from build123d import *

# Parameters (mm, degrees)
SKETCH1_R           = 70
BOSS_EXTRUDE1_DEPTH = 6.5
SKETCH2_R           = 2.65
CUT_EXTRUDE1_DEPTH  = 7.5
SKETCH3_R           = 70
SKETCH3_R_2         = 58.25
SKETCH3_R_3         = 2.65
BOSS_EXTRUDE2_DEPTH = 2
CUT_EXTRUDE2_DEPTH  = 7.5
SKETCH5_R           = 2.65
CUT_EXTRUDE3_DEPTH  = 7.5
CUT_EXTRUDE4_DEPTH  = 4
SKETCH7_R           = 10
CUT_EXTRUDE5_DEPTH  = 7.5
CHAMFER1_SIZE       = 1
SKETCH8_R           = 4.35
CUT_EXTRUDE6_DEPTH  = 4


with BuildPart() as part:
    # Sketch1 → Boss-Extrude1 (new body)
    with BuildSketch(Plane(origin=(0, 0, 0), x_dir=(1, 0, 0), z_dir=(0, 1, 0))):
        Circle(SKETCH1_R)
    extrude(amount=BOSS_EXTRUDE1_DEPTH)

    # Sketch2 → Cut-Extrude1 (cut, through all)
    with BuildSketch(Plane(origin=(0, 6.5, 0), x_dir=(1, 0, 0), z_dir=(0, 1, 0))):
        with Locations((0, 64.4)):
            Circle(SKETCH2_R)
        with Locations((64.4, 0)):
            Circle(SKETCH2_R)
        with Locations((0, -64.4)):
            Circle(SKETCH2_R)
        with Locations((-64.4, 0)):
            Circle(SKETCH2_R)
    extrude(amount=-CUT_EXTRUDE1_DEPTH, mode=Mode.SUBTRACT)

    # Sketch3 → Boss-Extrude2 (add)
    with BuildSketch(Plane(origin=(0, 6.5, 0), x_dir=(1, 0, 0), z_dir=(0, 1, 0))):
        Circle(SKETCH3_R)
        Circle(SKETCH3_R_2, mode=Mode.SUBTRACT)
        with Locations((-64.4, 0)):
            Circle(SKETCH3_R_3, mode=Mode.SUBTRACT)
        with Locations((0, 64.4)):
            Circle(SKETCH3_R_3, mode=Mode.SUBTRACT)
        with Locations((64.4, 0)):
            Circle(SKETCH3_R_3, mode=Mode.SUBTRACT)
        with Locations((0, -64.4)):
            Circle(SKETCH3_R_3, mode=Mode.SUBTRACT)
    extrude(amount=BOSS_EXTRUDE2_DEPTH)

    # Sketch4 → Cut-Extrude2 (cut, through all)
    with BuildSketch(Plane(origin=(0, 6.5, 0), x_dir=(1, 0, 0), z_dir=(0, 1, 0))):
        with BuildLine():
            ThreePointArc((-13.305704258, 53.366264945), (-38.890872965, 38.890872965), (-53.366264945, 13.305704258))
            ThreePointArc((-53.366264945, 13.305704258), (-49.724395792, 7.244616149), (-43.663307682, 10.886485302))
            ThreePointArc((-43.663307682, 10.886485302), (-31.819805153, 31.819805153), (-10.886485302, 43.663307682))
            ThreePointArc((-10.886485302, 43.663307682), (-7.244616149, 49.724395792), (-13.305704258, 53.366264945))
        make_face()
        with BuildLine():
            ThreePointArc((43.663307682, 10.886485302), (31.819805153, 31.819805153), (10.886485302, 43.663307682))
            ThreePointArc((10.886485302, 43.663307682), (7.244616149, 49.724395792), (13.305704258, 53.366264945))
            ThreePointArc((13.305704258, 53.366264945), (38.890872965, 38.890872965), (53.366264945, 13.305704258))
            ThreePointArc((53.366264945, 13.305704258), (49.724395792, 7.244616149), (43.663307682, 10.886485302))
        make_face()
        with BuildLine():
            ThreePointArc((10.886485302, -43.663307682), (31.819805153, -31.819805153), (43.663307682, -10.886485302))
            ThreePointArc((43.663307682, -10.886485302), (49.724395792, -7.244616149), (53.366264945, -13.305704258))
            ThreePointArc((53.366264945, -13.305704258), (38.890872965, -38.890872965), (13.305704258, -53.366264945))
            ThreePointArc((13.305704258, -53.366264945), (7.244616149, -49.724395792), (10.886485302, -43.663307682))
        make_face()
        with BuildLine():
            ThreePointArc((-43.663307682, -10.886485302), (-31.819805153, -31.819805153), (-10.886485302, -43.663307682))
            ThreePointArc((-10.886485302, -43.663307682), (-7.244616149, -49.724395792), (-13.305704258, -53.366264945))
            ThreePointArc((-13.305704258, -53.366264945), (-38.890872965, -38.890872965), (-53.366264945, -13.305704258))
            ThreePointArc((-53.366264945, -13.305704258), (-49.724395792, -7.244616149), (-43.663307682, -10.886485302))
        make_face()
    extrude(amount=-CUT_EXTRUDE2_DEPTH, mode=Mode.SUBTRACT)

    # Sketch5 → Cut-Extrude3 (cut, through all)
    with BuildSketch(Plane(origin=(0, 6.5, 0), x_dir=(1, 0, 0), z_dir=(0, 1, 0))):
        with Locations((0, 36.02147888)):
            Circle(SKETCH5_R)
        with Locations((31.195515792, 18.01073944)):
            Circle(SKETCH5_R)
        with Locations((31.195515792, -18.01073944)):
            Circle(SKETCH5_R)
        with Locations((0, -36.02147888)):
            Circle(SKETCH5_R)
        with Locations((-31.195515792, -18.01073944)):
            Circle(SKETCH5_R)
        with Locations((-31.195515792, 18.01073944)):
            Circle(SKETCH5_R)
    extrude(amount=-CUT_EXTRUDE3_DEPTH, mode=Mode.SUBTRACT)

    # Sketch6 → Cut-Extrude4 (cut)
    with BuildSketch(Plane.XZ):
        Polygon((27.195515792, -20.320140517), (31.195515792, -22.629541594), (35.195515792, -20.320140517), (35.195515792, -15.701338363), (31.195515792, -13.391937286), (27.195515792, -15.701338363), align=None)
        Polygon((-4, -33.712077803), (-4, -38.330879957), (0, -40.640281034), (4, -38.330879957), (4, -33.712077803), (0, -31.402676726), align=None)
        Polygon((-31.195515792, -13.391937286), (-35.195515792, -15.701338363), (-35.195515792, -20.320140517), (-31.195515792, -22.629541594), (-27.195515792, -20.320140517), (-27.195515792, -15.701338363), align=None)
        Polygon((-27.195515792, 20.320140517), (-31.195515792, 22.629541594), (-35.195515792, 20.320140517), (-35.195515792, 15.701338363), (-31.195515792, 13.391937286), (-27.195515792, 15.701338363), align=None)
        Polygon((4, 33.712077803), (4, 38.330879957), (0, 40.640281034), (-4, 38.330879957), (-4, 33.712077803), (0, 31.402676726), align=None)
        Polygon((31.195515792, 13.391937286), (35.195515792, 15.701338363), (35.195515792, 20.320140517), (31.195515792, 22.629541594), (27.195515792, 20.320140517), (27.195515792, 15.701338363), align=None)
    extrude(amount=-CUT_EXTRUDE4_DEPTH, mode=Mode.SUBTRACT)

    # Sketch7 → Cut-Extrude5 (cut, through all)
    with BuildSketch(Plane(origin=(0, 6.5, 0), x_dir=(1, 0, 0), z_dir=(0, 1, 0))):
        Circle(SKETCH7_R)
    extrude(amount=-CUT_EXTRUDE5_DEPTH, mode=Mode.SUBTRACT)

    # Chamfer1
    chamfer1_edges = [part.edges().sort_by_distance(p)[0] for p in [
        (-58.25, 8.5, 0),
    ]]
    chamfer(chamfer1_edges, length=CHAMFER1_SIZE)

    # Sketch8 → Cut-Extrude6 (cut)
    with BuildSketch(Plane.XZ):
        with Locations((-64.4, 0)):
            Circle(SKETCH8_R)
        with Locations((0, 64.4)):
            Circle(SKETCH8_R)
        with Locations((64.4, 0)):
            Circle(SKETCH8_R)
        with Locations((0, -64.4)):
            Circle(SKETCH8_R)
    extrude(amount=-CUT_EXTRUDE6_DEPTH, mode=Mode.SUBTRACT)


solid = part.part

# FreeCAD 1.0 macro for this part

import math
import FreeCAD as App
import Part
import Sketcher
Q = App.Units.Quantity


def edges_at(feature, points):
    """Names of the edges that pass closest to the given points."""
    edges = feature.Shape.Edges
    near = lambda p: min(range(len(edges)), key=lambda i: edges[i].distToShape(Part.Vertex(*p))[0])
    return sorted({f"Edge{near(p) + 1}" for p in points})


def add_polygon(sketch, points):
    """Adds a closed chain of lines whose ends are joined by coincident constraints."""
    first, n = sketch.GeometryCount, len(points)
    for a, b in zip(points, points[1:] + points[:1]):
        sketch.addGeometry(Part.LineSegment(App.Vector(*a, 0), App.Vector(*b, 0)), False)
    for i in range(n):
        sketch.addConstraint(Sketcher.Constraint("Coincident", first + i, 2, first + (i + 1) % n, 1))

doc = App.newDocument("Part")
body = doc.addObject("PartDesign::Body", "Body")

# Sketch on XZ plane
sketch1 = body.newObject("Sketcher::SketchObject", "Sketch")
sketch1.AttachmentSupport = (doc.getObject("XZ_Plane"), [""])
sketch1.MapMode = "FlatFace"
sketch1.addGeometry(Part.Circle(App.Vector(0, 0, 0), App.Vector(0, 0, 1), 70), False)
sketch1.addConstraint(Sketcher.Constraint("Coincident", 0, 3, -1, 1))
sketch1.addConstraint(Sketcher.Constraint("Diameter", 0, 140.0))
pad1 = body.newObject("PartDesign::Pad", "Pad")
pad1.Profile = sketch1
pad1.Length = 6.5
pad1.Reversed = True

# Sketch on XZ plane
sketch2 = body.newObject("Sketcher::SketchObject", "Sketch001")
sketch2.AttachmentSupport = (doc.getObject("XZ_Plane"), [""])
sketch2.MapMode = "FlatFace"
sketch2.AttachmentOffset = App.Placement(App.Vector(0, 0, -6.5), App.Rotation())
sketch2.addGeometry(Part.Circle(App.Vector(0, -64.4, 0), App.Vector(0, 0, 1), 2.6), False)
sketch2.addGeometry(Part.Circle(App.Vector(64.4, 0, 0), App.Vector(0, 0, 1), 2.6), False)
sketch2.addGeometry(Part.Circle(App.Vector(0, 64.4, 0), App.Vector(0, 0, 1), 2.6), False)
sketch2.addGeometry(Part.Circle(App.Vector(-64.4, 0, 0), App.Vector(0, 0, 1), 2.6), False)
sketch2.addConstraint(Sketcher.Constraint("Equal", 0, 1))
sketch2.addConstraint(Sketcher.Constraint("Equal", 1, 2))
sketch2.addConstraint(Sketcher.Constraint("Equal", 2, 3))
sketch2.addConstraint(Sketcher.Constraint("Symmetric", 0, 3, 2, 3, -1, 1))
sketch2.addConstraint(Sketcher.Constraint("Symmetric", 1, 3, 3, 3, -1, 1))
sketch2.addConstraint(Sketcher.Constraint("PointOnObject", 0, 3, -2))
sketch2.addConstraint(Sketcher.Constraint("PointOnObject", 1, 3, -1))
sketch2.addConstraint(Sketcher.Constraint("Diameter", 0, 5.3))
sketch2.addConstraint(Sketcher.Constraint("DistanceY", 0, 3, -1, 1, 64.4))
sketch2.addConstraint(Sketcher.Constraint("DistanceX", -1, 1, 1, 3, 64.4))
pocket1 = body.newObject("PartDesign::Pocket", "Pocket")
pocket1.Profile = sketch2
pocket1.Type = "ThroughAll"
pocket1.Reversed = True

# Sketch on XZ plane
sketch3 = body.newObject("Sketcher::SketchObject", "Sketch002")
sketch3.AttachmentSupport = (doc.getObject("XZ_Plane"), [""])
sketch3.MapMode = "FlatFace"
sketch3.AttachmentOffset = App.Placement(App.Vector(0, 0, -6.5), App.Rotation())
sketch3.addGeometry(Part.Circle(App.Vector(0, 0, 0), App.Vector(0, 0, 1), 70), False)
sketch3.addGeometry(Part.Circle(App.Vector(0, 64.4, 0), App.Vector(0, 0, 1), 2.6), False)
sketch3.addGeometry(Part.Circle(App.Vector(-64.4, 0, 0), App.Vector(0, 0, 1), 2.6), False)
sketch3.addGeometry(Part.Circle(App.Vector(0, 0, 0), App.Vector(0, 0, 1), 58.2), False)
sketch3.addGeometry(Part.Circle(App.Vector(64.4, 0, 0), App.Vector(0, 0, 1), 2.6), False)
sketch3.addGeometry(Part.Circle(App.Vector(0, -64.4, 0), App.Vector(0, 0, 1), 2.6), False)
sketch3.addConstraint(Sketcher.Constraint("Coincident", 0, 3, -1, 1))
sketch3.addConstraint(Sketcher.Constraint("Coincident", 3, 3, -1, 1))
sketch3.addConstraint(Sketcher.Constraint("Equal", 1, 2))
sketch3.addConstraint(Sketcher.Constraint("Equal", 2, 4))
sketch3.addConstraint(Sketcher.Constraint("Equal", 4, 5))
sketch3.addConstraint(Sketcher.Constraint("Symmetric", 2, 3, 4, 3, -1, 1))
sketch3.addConstraint(Sketcher.Constraint("Symmetric", 1, 3, 5, 3, -1, 1))
sketch3.addConstraint(Sketcher.Constraint("PointOnObject", 1, 3, -2))
sketch3.addConstraint(Sketcher.Constraint("PointOnObject", 2, 3, -1))
sketch3.addConstraint(Sketcher.Constraint("Diameter", 0, 140.0))
sketch3.addConstraint(Sketcher.Constraint("Diameter", 1, 5.3))
sketch3.addConstraint(Sketcher.Constraint("Diameter", 3, 116.5))
sketch3.addConstraint(Sketcher.Constraint("DistanceY", -1, 1, 1, 3, 64.4))
sketch3.addConstraint(Sketcher.Constraint("DistanceX", 2, 3, -1, 1, 64.4))
pad2 = body.newObject("PartDesign::Pad", "Pad001")
pad2.Profile = sketch3
pad2.Length = 2
pad2.Reversed = True

# Sketch on XZ plane
sketch4 = body.newObject("Sketcher::SketchObject", "Sketch003")
sketch4.AttachmentSupport = (doc.getObject("XZ_Plane"), [""])
sketch4.MapMode = "FlatFace"
sketch4.AttachmentOffset = App.Placement(App.Vector(0, 0, -6.5), App.Rotation())
sketch4.addGeometry(Part.ArcOfCircle(Part.Circle(App.Vector(0, 0, 0), App.Vector(0, 0, 1), 55), math.radians(-166), math.radians(-104)), False)
sketch4.addGeometry(Part.ArcOfCircle(Part.Circle(App.Vector(-49, -12, 0), App.Vector(0, 0, 1), 5), math.radians(14), math.radians(194)), False)
sketch4.addGeometry(Part.ArcOfCircle(Part.Circle(App.Vector(0, 0, 0), App.Vector(0, 0, 1), 45), math.radians(-166), math.radians(-104)), False)
sketch4.addGeometry(Part.ArcOfCircle(Part.Circle(App.Vector(-12, -49, 0), App.Vector(0, 0, 1), 5), math.radians(-104), math.radians(76)), False)
sketch4.addGeometry(Part.ArcOfCircle(Part.Circle(App.Vector(0, 0, 0), App.Vector(0, 0, 1), 45), math.radians(-76), math.radians(-14)), False)
sketch4.addGeometry(Part.ArcOfCircle(Part.Circle(App.Vector(49, -12, 0), App.Vector(0, 0, 1), 5), math.radians(-14), math.radians(166)), False)
sketch4.addGeometry(Part.ArcOfCircle(Part.Circle(App.Vector(0, 0, 0), App.Vector(0, 0, 1), 55), math.radians(-76), math.radians(-14)), False)
sketch4.addGeometry(Part.ArcOfCircle(Part.Circle(App.Vector(12, -49, 0), App.Vector(0, 0, 1), 5), math.radians(104), math.radians(284)), False)
sketch4.addGeometry(Part.ArcOfCircle(Part.Circle(App.Vector(0, 0, 0), App.Vector(0, 0, 1), 45), math.radians(14), math.radians(76)), False)
sketch4.addGeometry(Part.ArcOfCircle(Part.Circle(App.Vector(12, 49, 0), App.Vector(0, 0, 1), 5), math.radians(76), math.radians(256)), False)
sketch4.addGeometry(Part.ArcOfCircle(Part.Circle(App.Vector(0, 0, 0), App.Vector(0, 0, 1), 55), math.radians(14), math.radians(76)), False)
sketch4.addGeometry(Part.ArcOfCircle(Part.Circle(App.Vector(49, 12, 0), App.Vector(0, 0, 1), 5), math.radians(-166), math.radians(14)), False)
sketch4.addGeometry(Part.ArcOfCircle(Part.Circle(App.Vector(0, 0, 0), App.Vector(0, 0, 1), 45), math.radians(104), math.radians(166)), False)
sketch4.addGeometry(Part.ArcOfCircle(Part.Circle(App.Vector(-49, 12, 0), App.Vector(0, 0, 1), 5), math.radians(166), math.radians(346)), False)
sketch4.addGeometry(Part.ArcOfCircle(Part.Circle(App.Vector(0, 0, 0), App.Vector(0, 0, 1), 55), math.radians(104), math.radians(166)), False)
sketch4.addGeometry(Part.ArcOfCircle(Part.Circle(App.Vector(-12, 49, 0), App.Vector(0, 0, 1), 5), math.radians(-76), math.radians(104)), False)
sketch4.addConstraint(Sketcher.Constraint("Tangent", 0, 1, 1, 2))
sketch4.addConstraint(Sketcher.Constraint("Tangent", 1, 1, 2, 1))
sketch4.addConstraint(Sketcher.Constraint("Tangent", 2, 2, 3, 2))
sketch4.addConstraint(Sketcher.Constraint("Tangent", 3, 1, 0, 2))
sketch4.addConstraint(Sketcher.Constraint("Tangent", 4, 2, 5, 2))
sketch4.addConstraint(Sketcher.Constraint("Tangent", 5, 1, 6, 2))
sketch4.addConstraint(Sketcher.Constraint("Tangent", 6, 1, 7, 2))
sketch4.addConstraint(Sketcher.Constraint("Tangent", 7, 1, 4, 1))
sketch4.addConstraint(Sketcher.Constraint("Tangent", 8, 2, 9, 2))
sketch4.addConstraint(Sketcher.Constraint("Tangent", 9, 1, 10, 2))
sketch4.addConstraint(Sketcher.Constraint("Tangent", 10, 1, 11, 2))
sketch4.addConstraint(Sketcher.Constraint("Tangent", 11, 1, 8, 1))
sketch4.addConstraint(Sketcher.Constraint("Tangent", 12, 2, 13, 2))
sketch4.addConstraint(Sketcher.Constraint("Tangent", 13, 1, 14, 2))
sketch4.addConstraint(Sketcher.Constraint("Tangent", 14, 1, 15, 2))
sketch4.addConstraint(Sketcher.Constraint("Tangent", 15, 1, 12, 1))
sketch4.addConstraint(Sketcher.Constraint("Coincident", 0, 3, -1, 1))
sketch4.addConstraint(Sketcher.Constraint("Coincident", 2, 3, -1, 1))
sketch4.addConstraint(Sketcher.Constraint("Coincident", 4, 3, -1, 1))
sketch4.addConstraint(Sketcher.Constraint("Coincident", 6, 3, -1, 1))
sketch4.addConstraint(Sketcher.Constraint("Coincident", 8, 3, -1, 1))
sketch4.addConstraint(Sketcher.Constraint("Coincident", 10, 3, -1, 1))
sketch4.addConstraint(Sketcher.Constraint("Coincident", 12, 3, -1, 1))
sketch4.addConstraint(Sketcher.Constraint("Coincident", 14, 3, -1, 1))
sketch4.addConstraint(Sketcher.Constraint("Equal", 2, 4))
sketch4.addConstraint(Sketcher.Constraint("Equal", 3, 5))
sketch4.addConstraint(Sketcher.Constraint("Equal", 4, 8))
sketch4.addConstraint(Sketcher.Constraint("Equal", 7, 9))
sketch4.addConstraint(Sketcher.Constraint("Equal", 8, 12))
sketch4.addConstraint(Sketcher.Constraint("Equal", 11, 13))
sketch4.addConstraint(Sketcher.Constraint("Horizontal", 1, 3, 5, 3))
sketch4.addConstraint(Sketcher.Constraint("Horizontal", 3, 3, 7, 3))
sketch4.addConstraint(Sketcher.Constraint("Horizontal", 11, 3, 13, 3))
sketch4.addConstraint(Sketcher.Constraint("Horizontal", 9, 3, 15, 3))
sketch4.addConstraint(Sketcher.Constraint("Vertical", 7, 3, 9, 3))
sketch4.addConstraint(Sketcher.Constraint("Vertical", 5, 3, 11, 3))
sketch4.addConstraint(Sketcher.Constraint("Radius", 0, 55.0))
sketch4.addConstraint(Sketcher.Constraint("Radius", 1, 5.0))
sketch4.addConstraint(Sketcher.Constraint("DistanceY", 0, 1, 13, 3, 25.401799))
sketch4.addConstraint(Sketcher.Constraint("DistanceX", 3, 1, 7, 3, 25.401799))
pocket2 = body.newObject("PartDesign::Pocket", "Pocket001")
pocket2.Profile = sketch4
pocket2.Type = "ThroughAll"
pocket2.Reversed = True

# Sketch on XZ plane
sketch5 = body.newObject("Sketcher::SketchObject", "Sketch004")
sketch5.AttachmentSupport = (doc.getObject("XZ_Plane"), [""])
sketch5.MapMode = "FlatFace"
sketch5.AttachmentOffset = App.Placement(App.Vector(0, 0, -6.5), App.Rotation())
sketch5.addGeometry(Part.Circle(App.Vector(0, -36, 0), App.Vector(0, 0, 1), 2.6), False)
sketch5.addGeometry(Part.Circle(App.Vector(31.2, -18, 0), App.Vector(0, 0, 1), 2.6), False)
sketch5.addGeometry(Part.Circle(App.Vector(31.2, 18, 0), App.Vector(0, 0, 1), 2.6), False)
sketch5.addGeometry(Part.Circle(App.Vector(0, 36, 0), App.Vector(0, 0, 1), 2.6), False)
sketch5.addGeometry(Part.Circle(App.Vector(-31.2, 18, 0), App.Vector(0, 0, 1), 2.6), False)
sketch5.addGeometry(Part.Circle(App.Vector(-31.2, -18, 0), App.Vector(0, 0, 1), 2.6), False)
sketch5.addConstraint(Sketcher.Constraint("Equal", 0, 1))
sketch5.addConstraint(Sketcher.Constraint("Equal", 1, 2))
sketch5.addConstraint(Sketcher.Constraint("Equal", 2, 3))
sketch5.addConstraint(Sketcher.Constraint("Equal", 3, 4))
sketch5.addConstraint(Sketcher.Constraint("Equal", 4, 5))
sketch5.addConstraint(Sketcher.Constraint("Symmetric", 0, 3, 3, 3, -1, 1))
sketch5.addConstraint(Sketcher.Constraint("Symmetric", 1, 3, 4, 3, -1, 1))
sketch5.addConstraint(Sketcher.Constraint("Symmetric", 2, 3, 5, 3, -1, 1))
sketch5.addConstraint(Sketcher.Constraint("Symmetric", 2, 3, 4, 3, -2))
sketch5.addConstraint(Sketcher.Constraint("PointOnObject", 0, 3, -2))
sketch5.addConstraint(Sketcher.Constraint("Diameter", 0, 5.3))
sketch5.addConstraint(Sketcher.Constraint("DistanceY", 0, 3, -1, 1, 36.021479))
sketch5.addConstraint(Sketcher.Constraint("DistanceY", 1, 3, -1, 1, 18.010739))
sketch5.addConstraint(Sketcher.Constraint("DistanceX", 4, 3, 2, 3, 62.391032))
pocket3 = body.newObject("PartDesign::Pocket", "Pocket002")
pocket3.Profile = sketch5
pocket3.Type = "ThroughAll"
pocket3.Reversed = True

# Sketch on XZ plane
sketch6 = body.newObject("Sketcher::SketchObject", "Sketch005")
sketch6.AttachmentSupport = (doc.getObject("XZ_Plane"), [""])
sketch6.MapMode = "FlatFace"
add_polygon(sketch6, [(27.2, -20.3), (31.2, -22.6), (35.2, -20.3), (35.2, -15.7), (31.2, -13.4), (27.2, -15.7)])  # lines 0-5
add_polygon(sketch6, [(-4, -33.7), (-4, -38.3), (0, -40.6), (4, -38.3), (4, -33.7), (0, -31.4)])  # lines 6-11
add_polygon(sketch6, [(-31.2, -13.4), (-35.2, -15.7), (-35.2, -20.3), (-31.2, -22.6), (-27.2, -20.3), (-27.2, -15.7)])  # lines 12-17
add_polygon(sketch6, [(-27.2, 20.3), (-31.2, 22.6), (-35.2, 20.3), (-35.2, 15.7), (-31.2, 13.4), (-27.2, 15.7)])  # lines 18-23
add_polygon(sketch6, [(4, 33.7), (4, 38.3), (0, 40.6), (-4, 38.3), (-4, 33.7), (0, 31.4)])  # lines 24-29
add_polygon(sketch6, [(31.2, 13.4), (35.2, 15.7), (35.2, 20.3), (31.2, 22.6), (27.2, 20.3), (27.2, 15.7)])  # lines 30-35
sketch6.addConstraint(Sketcher.Constraint("Vertical", 2))
sketch6.addConstraint(Sketcher.Constraint("Vertical", 5))
sketch6.addConstraint(Sketcher.Constraint("Vertical", 6))
sketch6.addConstraint(Sketcher.Constraint("Vertical", 9))
sketch6.addConstraint(Sketcher.Constraint("Vertical", 13))
sketch6.addConstraint(Sketcher.Constraint("Vertical", 16))
sketch6.addConstraint(Sketcher.Constraint("Vertical", 20))
sketch6.addConstraint(Sketcher.Constraint("Vertical", 23))
sketch6.addConstraint(Sketcher.Constraint("Vertical", 24))
sketch6.addConstraint(Sketcher.Constraint("Vertical", 27))
sketch6.addConstraint(Sketcher.Constraint("Vertical", 31))
sketch6.addConstraint(Sketcher.Constraint("Vertical", 34))
sketch6.addConstraint(Sketcher.Constraint("Symmetric", 0, 2, 18, 2, -1, 1))
sketch6.addConstraint(Sketcher.Constraint("Symmetric", 1, 2, 19, 2, -1, 1))
sketch6.addConstraint(Sketcher.Constraint("Symmetric", 3, 2, 21, 2, -1, 1))
sketch6.addConstraint(Sketcher.Constraint("Symmetric", 4, 2, 22, 2, -1, 1))
sketch6.addConstraint(Sketcher.Constraint("Symmetric", 6, 2, 24, 2, -1, 1))
sketch6.addConstraint(Sketcher.Constraint("Symmetric", 7, 2, 25, 2, -1, 1))
sketch6.addConstraint(Sketcher.Constraint("Symmetric", 8, 2, 26, 2, -1, 1))
sketch6.addConstraint(Sketcher.Constraint("Symmetric", 10, 2, 28, 2, -1, 1))
sketch6.addConstraint(Sketcher.Constraint("Symmetric", 12, 2, 30, 2, -1, 1))
sketch6.addConstraint(Sketcher.Constraint("Symmetric", 14, 2, 32, 2, -1, 1))
sketch6.addConstraint(Sketcher.Constraint("Symmetric", 15, 2, 33, 2, -1, 1))
sketch6.addConstraint(Sketcher.Constraint("Symmetric", 17, 2, 35, 2, -1, 1))
sketch6.addConstraint(Sketcher.Constraint("Symmetric", 6, 2, 8, 2, -2))
sketch6.addConstraint(Sketcher.Constraint("Symmetric", 2, 2, 12, 2, -2))
sketch6.addConstraint(Sketcher.Constraint("Symmetric", 0, 2, 14, 2, -2))
sketch6.addConstraint(Sketcher.Constraint("Symmetric", 5, 2, 15, 2, -2))
sketch6.addConstraint(Sketcher.Constraint("Symmetric", 3, 2, 17, 2, -2))
sketch6.addConstraint(Sketcher.Constraint("PointOnObject", 7, 2, -2))
sketch6.addConstraint(Sketcher.Constraint("PointOnObject", 10, 2, -2))
sketch6.addConstraint(Sketcher.Constraint("Parallel", 0, 3))
sketch6.addConstraint(Sketcher.Constraint("Parallel", 1, 4))
sketch6.addConstraint(Sketcher.Constraint("Parallel", 3, 7))
sketch6.addConstraint(Sketcher.Constraint("Parallel", 4, 8))
sketch6.addConstraint(Sketcher.Constraint("Parallel", 7, 10))
sketch6.addConstraint(Sketcher.Constraint("Parallel", 8, 11))
sketch6.addConstraint(Sketcher.Constraint("Parallel", 10, 14))
sketch6.addConstraint(Sketcher.Constraint("Parallel", 14, 17))
sketch6.addConstraint(Sketcher.Constraint("Parallel", 17, 18))
sketch6.addConstraint(Sketcher.Constraint("Parallel", 18, 21))
sketch6.addConstraint(Sketcher.Constraint("Parallel", 25, 28))
sketch6.addConstraint(Sketcher.Constraint("Parallel", 26, 29))
sketch6.addConstraint(Sketcher.Constraint("Parallel", 28, 32))
sketch6.addConstraint(Sketcher.Constraint("Parallel", 32, 35))
sketch6.addConstraint(Sketcher.Constraint("Horizontal", 2, 2, 4, 2))
sketch6.addConstraint(Sketcher.Constraint("Horizontal", 1, 2, 5, 2))
sketch6.addConstraint(Sketcher.Constraint("Equal", 5, 6))
sketch6.addConstraint(Sketcher.Constraint("Equal", 4, 7))
sketch6.addConstraint(Sketcher.Constraint("Angle", 0, Q("-30 deg")))
sketch6.addConstraint(Sketcher.Constraint("DistanceX", 6, 2, -1, 1, 4.0))
sketch6.addConstraint(Sketcher.Constraint("DistanceY", 2, 1, 2, 2, 4.618802))
sketch6.addConstraint(Sketcher.Constraint("DistanceY", 0, 2, -1, 1, 22.629542))
sketch6.addConstraint(Sketcher.Constraint("DistanceY", 6, 2, -1, 1, 38.33088))
sketch6.addConstraint(Sketcher.Constraint("DistanceX", -1, 1, 0, 2, 31.195516))
pocket4 = body.newObject("PartDesign::Pocket", "Pocket003")
pocket4.Profile = sketch6
pocket4.Length = 4

# Sketch on XZ plane
sketch7 = body.newObject("Sketcher::SketchObject", "Sketch006")
sketch7.AttachmentSupport = (doc.getObject("XZ_Plane"), [""])
sketch7.MapMode = "FlatFace"
sketch7.AttachmentOffset = App.Placement(App.Vector(0, 0, -6.5), App.Rotation())
sketch7.addGeometry(Part.Circle(App.Vector(0, 0, 0), App.Vector(0, 0, 1), 10), False)
sketch7.addConstraint(Sketcher.Constraint("Coincident", 0, 3, -1, 1))
sketch7.addConstraint(Sketcher.Constraint("Diameter", 0, 20.0))
pocket5 = body.newObject("PartDesign::Pocket", "Pocket004")
pocket5.Profile = sketch7
pocket5.Type = "ThroughAll"
pocket5.Reversed = True
doc.recompute()

chamfer = body.newObject("PartDesign::Chamfer", "Chamfer")
chamfer.Base = (pocket5, edges_at(pocket5, [(-58.25, 8.5, 0)]))
chamfer.Size = 1

# Sketch on XZ plane
sketch8 = body.newObject("Sketcher::SketchObject", "Sketch007")
sketch8.AttachmentSupport = (doc.getObject("XZ_Plane"), [""])
sketch8.MapMode = "FlatFace"
sketch8.addGeometry(Part.Circle(App.Vector(-64.4, 0, 0), App.Vector(0, 0, 1), 4.3), False)
sketch8.addGeometry(Part.Circle(App.Vector(0, 64.4, 0), App.Vector(0, 0, 1), 4.3), False)
sketch8.addGeometry(Part.Circle(App.Vector(64.4, 0, 0), App.Vector(0, 0, 1), 4.3), False)
sketch8.addGeometry(Part.Circle(App.Vector(0, -64.4, 0), App.Vector(0, 0, 1), 4.3), False)
sketch8.addConstraint(Sketcher.Constraint("Equal", 0, 1))
sketch8.addConstraint(Sketcher.Constraint("Equal", 1, 2))
sketch8.addConstraint(Sketcher.Constraint("Equal", 2, 3))
sketch8.addConstraint(Sketcher.Constraint("Symmetric", 0, 3, 2, 3, -1, 1))
sketch8.addConstraint(Sketcher.Constraint("Symmetric", 1, 3, 3, 3, -1, 1))
sketch8.addConstraint(Sketcher.Constraint("PointOnObject", 0, 3, -1))
sketch8.addConstraint(Sketcher.Constraint("PointOnObject", 1, 3, -2))
sketch8.addConstraint(Sketcher.Constraint("Diameter", 0, 8.7))
sketch8.addConstraint(Sketcher.Constraint("DistanceX", 0, 3, -1, 1, 64.4))
sketch8.addConstraint(Sketcher.Constraint("DistanceY", -1, 1, 1, 3, 64.4))
pocket6 = body.newObject("PartDesign::Pocket", "Pocket005")
pocket6.Profile = sketch8
pocket6.Length = 4

doc.recompute()
